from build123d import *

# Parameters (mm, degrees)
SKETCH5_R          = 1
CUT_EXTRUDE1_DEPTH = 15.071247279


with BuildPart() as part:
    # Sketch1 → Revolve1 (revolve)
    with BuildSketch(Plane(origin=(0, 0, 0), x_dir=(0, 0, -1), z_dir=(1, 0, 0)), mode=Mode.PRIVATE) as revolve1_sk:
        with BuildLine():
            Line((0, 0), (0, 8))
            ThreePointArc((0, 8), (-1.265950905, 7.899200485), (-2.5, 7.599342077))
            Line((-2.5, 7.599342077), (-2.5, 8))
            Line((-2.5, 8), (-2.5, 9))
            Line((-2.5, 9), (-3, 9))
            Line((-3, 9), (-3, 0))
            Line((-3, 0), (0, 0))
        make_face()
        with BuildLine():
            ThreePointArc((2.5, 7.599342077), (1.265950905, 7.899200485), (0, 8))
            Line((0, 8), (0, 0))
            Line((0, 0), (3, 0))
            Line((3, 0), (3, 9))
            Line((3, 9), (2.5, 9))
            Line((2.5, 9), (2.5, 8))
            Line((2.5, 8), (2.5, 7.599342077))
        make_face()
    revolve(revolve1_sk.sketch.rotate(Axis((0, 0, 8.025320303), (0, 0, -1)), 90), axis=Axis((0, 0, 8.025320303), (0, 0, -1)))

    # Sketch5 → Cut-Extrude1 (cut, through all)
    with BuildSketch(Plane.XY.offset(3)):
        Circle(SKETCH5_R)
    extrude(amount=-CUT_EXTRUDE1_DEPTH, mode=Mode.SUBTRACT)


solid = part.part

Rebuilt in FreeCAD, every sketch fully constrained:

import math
import FreeCAD as App
import Part
import Sketcher
from FreeCAD import Vector
Q = App.Units.Quantity

doc = App.newDocument("Part")
body = doc.addObject("PartDesign::Body", "Body")

sketch1 = body.newObject("Sketcher::SketchObject", "Sketch")
sketch1.AttachmentSupport = (doc.getObject("YZ_Plane"), [""])
sketch1.MapMode = "FlatFace"
sketch1.addGeometry(Part.ArcOfCircle(Part.Circle(Vector(0, 0, 0), Vector(0, 0, 1), 8), math.radians(0), math.radians(18.209957)), False)
sketch1.addGeometry(Part.LineSegment(Vector(7.599342, 2.5, 0), Vector(9, 2.5, 0)), False)
sketch1.addGeometry(Part.LineSegment(Vector(9, 2.5, 0), Vector(9, 3, 0)), False)
sketch1.addGeometry(Part.LineSegment(Vector(9, 3, 0), Vector(0, 3, 0)), False)
sketch1.addGeometry(Part.LineSegment(Vector(0, 3, 0), Vector(0, -3, 0)), False)
sketch1.addGeometry(Part.LineSegment(Vector(0, -3, 0), Vector(9, -3, 0)), False)
sketch1.addGeometry(Part.LineSegment(Vector(9, -3, 0), Vector(9, -2.5, 0)), False)
sketch1.addGeometry(Part.LineSegment(Vector(9, -2.5, 0), Vector(7.599342, -2.5, 0)), False)
sketch1.addGeometry(Part.ArcOfCircle(Part.Circle(Vector(0, 0, 0), Vector(0, 0, 1), 8), math.radians(-18.209957), math.radians(0)), False)
sketch1.addConstraint(Sketcher.Constraint("Coincident", 0, 2, 1, 1))
sketch1.addConstraint(Sketcher.Constraint("Coincident", 1, 2, 2, 1))
sketch1.addConstraint(Sketcher.Constraint("Coincident", 2, 2, 3, 1))
sketch1.addConstraint(Sketcher.Constraint("Coincident", 3, 2, 4, 1))
sketch1.addConstraint(Sketcher.Constraint("Coincident", 4, 2, 5, 1))
sketch1.addConstraint(Sketcher.Constraint("Coincident", 5, 2, 6, 1))
sketch1.addConstraint(Sketcher.Constraint("Coincident", 6, 2, 7, 1))
sketch1.addConstraint(Sketcher.Constraint("Coincident", 7, 2, 8, 1))
sketch1.addConstraint(Sketcher.Constraint("Tangent", 8, 2, 0, 1))
sketch1.addConstraint(Sketcher.Constraint("Horizontal", 1))
sketch1.addConstraint(Sketcher.Constraint("Vertical", 2))
sketch1.addConstraint(Sketcher.Constraint("Horizontal", 3))
sketch1.addConstraint(Sketcher.Constraint("Vertical", 4))
sketch1.addConstraint(Sketcher.Constraint("Horizontal", 5))
sketch1.addConstraint(Sketcher.Constraint("Vertical", 6))
sketch1.addConstraint(Sketcher.Constraint("Horizontal", 7))
sketch1.addConstraint(Sketcher.Constraint("Coincident", 0, 3, -1, 1))
sketch1.addConstraint(Sketcher.Constraint("Equal", 0, 8))
sketch1.addConstraint(Sketcher.Constraint("Symmetric", 3, 2, 4, 2, -1, 1))
sketch1.addConstraint(Sketcher.Constraint("Symmetric", 1, 2, 6, 2, -1))
sketch1.addConstraint(Sketcher.Constraint("PointOnObject", 8, 2, -1))
sketch1.addConstraint(Sketcher.Constraint("Radius", 0, Q("8 mm")))
sketch1.addConstraint(Sketcher.Constraint("DistanceX", 3, 2, 3, 1, Q("9 mm")))
sketch1.addConstraint(Sketcher.Constraint("DistanceY", 4, 2, 4, 1, Q("6 mm")))
sketch1.addConstraint(Sketcher.Constraint("DistanceY", 2, 1, 2, 2, Q("0.5 mm")))
revolution = body.newObject("PartDesign::Revolution", "Revolution")
revolution.Profile = sketch1
revolution.ReferenceAxis = (sketch1, ["V_Axis"])
revolution.Angle = 360

sketch2 = body.newObject("Sketcher::SketchObject", "Sketch001")
sketch2.AttachmentSupport = (doc.getObject("XY_Plane"), [""])
sketch2.MapMode = "FlatFace"
sketch2.AttachmentOffset = App.Placement(Vector(0, 0, 3), App.Rotation())
sketch2.addGeometry(Part.Circle(Vector(0, 0, 0), Vector(0, 0, 1), 1), False)
sketch2.addConstraint(Sketcher.Constraint("Coincident", 0, 3, -1, 1))
sketch2.addConstraint(Sketcher.Constraint("Diameter", 0, Q("2 mm")))
pocket1 = body.newObject("PartDesign::Pocket", "Pocket")
pocket1.Profile = sketch2
pocket1.Type = "ThroughAll"

doc.recompute()
